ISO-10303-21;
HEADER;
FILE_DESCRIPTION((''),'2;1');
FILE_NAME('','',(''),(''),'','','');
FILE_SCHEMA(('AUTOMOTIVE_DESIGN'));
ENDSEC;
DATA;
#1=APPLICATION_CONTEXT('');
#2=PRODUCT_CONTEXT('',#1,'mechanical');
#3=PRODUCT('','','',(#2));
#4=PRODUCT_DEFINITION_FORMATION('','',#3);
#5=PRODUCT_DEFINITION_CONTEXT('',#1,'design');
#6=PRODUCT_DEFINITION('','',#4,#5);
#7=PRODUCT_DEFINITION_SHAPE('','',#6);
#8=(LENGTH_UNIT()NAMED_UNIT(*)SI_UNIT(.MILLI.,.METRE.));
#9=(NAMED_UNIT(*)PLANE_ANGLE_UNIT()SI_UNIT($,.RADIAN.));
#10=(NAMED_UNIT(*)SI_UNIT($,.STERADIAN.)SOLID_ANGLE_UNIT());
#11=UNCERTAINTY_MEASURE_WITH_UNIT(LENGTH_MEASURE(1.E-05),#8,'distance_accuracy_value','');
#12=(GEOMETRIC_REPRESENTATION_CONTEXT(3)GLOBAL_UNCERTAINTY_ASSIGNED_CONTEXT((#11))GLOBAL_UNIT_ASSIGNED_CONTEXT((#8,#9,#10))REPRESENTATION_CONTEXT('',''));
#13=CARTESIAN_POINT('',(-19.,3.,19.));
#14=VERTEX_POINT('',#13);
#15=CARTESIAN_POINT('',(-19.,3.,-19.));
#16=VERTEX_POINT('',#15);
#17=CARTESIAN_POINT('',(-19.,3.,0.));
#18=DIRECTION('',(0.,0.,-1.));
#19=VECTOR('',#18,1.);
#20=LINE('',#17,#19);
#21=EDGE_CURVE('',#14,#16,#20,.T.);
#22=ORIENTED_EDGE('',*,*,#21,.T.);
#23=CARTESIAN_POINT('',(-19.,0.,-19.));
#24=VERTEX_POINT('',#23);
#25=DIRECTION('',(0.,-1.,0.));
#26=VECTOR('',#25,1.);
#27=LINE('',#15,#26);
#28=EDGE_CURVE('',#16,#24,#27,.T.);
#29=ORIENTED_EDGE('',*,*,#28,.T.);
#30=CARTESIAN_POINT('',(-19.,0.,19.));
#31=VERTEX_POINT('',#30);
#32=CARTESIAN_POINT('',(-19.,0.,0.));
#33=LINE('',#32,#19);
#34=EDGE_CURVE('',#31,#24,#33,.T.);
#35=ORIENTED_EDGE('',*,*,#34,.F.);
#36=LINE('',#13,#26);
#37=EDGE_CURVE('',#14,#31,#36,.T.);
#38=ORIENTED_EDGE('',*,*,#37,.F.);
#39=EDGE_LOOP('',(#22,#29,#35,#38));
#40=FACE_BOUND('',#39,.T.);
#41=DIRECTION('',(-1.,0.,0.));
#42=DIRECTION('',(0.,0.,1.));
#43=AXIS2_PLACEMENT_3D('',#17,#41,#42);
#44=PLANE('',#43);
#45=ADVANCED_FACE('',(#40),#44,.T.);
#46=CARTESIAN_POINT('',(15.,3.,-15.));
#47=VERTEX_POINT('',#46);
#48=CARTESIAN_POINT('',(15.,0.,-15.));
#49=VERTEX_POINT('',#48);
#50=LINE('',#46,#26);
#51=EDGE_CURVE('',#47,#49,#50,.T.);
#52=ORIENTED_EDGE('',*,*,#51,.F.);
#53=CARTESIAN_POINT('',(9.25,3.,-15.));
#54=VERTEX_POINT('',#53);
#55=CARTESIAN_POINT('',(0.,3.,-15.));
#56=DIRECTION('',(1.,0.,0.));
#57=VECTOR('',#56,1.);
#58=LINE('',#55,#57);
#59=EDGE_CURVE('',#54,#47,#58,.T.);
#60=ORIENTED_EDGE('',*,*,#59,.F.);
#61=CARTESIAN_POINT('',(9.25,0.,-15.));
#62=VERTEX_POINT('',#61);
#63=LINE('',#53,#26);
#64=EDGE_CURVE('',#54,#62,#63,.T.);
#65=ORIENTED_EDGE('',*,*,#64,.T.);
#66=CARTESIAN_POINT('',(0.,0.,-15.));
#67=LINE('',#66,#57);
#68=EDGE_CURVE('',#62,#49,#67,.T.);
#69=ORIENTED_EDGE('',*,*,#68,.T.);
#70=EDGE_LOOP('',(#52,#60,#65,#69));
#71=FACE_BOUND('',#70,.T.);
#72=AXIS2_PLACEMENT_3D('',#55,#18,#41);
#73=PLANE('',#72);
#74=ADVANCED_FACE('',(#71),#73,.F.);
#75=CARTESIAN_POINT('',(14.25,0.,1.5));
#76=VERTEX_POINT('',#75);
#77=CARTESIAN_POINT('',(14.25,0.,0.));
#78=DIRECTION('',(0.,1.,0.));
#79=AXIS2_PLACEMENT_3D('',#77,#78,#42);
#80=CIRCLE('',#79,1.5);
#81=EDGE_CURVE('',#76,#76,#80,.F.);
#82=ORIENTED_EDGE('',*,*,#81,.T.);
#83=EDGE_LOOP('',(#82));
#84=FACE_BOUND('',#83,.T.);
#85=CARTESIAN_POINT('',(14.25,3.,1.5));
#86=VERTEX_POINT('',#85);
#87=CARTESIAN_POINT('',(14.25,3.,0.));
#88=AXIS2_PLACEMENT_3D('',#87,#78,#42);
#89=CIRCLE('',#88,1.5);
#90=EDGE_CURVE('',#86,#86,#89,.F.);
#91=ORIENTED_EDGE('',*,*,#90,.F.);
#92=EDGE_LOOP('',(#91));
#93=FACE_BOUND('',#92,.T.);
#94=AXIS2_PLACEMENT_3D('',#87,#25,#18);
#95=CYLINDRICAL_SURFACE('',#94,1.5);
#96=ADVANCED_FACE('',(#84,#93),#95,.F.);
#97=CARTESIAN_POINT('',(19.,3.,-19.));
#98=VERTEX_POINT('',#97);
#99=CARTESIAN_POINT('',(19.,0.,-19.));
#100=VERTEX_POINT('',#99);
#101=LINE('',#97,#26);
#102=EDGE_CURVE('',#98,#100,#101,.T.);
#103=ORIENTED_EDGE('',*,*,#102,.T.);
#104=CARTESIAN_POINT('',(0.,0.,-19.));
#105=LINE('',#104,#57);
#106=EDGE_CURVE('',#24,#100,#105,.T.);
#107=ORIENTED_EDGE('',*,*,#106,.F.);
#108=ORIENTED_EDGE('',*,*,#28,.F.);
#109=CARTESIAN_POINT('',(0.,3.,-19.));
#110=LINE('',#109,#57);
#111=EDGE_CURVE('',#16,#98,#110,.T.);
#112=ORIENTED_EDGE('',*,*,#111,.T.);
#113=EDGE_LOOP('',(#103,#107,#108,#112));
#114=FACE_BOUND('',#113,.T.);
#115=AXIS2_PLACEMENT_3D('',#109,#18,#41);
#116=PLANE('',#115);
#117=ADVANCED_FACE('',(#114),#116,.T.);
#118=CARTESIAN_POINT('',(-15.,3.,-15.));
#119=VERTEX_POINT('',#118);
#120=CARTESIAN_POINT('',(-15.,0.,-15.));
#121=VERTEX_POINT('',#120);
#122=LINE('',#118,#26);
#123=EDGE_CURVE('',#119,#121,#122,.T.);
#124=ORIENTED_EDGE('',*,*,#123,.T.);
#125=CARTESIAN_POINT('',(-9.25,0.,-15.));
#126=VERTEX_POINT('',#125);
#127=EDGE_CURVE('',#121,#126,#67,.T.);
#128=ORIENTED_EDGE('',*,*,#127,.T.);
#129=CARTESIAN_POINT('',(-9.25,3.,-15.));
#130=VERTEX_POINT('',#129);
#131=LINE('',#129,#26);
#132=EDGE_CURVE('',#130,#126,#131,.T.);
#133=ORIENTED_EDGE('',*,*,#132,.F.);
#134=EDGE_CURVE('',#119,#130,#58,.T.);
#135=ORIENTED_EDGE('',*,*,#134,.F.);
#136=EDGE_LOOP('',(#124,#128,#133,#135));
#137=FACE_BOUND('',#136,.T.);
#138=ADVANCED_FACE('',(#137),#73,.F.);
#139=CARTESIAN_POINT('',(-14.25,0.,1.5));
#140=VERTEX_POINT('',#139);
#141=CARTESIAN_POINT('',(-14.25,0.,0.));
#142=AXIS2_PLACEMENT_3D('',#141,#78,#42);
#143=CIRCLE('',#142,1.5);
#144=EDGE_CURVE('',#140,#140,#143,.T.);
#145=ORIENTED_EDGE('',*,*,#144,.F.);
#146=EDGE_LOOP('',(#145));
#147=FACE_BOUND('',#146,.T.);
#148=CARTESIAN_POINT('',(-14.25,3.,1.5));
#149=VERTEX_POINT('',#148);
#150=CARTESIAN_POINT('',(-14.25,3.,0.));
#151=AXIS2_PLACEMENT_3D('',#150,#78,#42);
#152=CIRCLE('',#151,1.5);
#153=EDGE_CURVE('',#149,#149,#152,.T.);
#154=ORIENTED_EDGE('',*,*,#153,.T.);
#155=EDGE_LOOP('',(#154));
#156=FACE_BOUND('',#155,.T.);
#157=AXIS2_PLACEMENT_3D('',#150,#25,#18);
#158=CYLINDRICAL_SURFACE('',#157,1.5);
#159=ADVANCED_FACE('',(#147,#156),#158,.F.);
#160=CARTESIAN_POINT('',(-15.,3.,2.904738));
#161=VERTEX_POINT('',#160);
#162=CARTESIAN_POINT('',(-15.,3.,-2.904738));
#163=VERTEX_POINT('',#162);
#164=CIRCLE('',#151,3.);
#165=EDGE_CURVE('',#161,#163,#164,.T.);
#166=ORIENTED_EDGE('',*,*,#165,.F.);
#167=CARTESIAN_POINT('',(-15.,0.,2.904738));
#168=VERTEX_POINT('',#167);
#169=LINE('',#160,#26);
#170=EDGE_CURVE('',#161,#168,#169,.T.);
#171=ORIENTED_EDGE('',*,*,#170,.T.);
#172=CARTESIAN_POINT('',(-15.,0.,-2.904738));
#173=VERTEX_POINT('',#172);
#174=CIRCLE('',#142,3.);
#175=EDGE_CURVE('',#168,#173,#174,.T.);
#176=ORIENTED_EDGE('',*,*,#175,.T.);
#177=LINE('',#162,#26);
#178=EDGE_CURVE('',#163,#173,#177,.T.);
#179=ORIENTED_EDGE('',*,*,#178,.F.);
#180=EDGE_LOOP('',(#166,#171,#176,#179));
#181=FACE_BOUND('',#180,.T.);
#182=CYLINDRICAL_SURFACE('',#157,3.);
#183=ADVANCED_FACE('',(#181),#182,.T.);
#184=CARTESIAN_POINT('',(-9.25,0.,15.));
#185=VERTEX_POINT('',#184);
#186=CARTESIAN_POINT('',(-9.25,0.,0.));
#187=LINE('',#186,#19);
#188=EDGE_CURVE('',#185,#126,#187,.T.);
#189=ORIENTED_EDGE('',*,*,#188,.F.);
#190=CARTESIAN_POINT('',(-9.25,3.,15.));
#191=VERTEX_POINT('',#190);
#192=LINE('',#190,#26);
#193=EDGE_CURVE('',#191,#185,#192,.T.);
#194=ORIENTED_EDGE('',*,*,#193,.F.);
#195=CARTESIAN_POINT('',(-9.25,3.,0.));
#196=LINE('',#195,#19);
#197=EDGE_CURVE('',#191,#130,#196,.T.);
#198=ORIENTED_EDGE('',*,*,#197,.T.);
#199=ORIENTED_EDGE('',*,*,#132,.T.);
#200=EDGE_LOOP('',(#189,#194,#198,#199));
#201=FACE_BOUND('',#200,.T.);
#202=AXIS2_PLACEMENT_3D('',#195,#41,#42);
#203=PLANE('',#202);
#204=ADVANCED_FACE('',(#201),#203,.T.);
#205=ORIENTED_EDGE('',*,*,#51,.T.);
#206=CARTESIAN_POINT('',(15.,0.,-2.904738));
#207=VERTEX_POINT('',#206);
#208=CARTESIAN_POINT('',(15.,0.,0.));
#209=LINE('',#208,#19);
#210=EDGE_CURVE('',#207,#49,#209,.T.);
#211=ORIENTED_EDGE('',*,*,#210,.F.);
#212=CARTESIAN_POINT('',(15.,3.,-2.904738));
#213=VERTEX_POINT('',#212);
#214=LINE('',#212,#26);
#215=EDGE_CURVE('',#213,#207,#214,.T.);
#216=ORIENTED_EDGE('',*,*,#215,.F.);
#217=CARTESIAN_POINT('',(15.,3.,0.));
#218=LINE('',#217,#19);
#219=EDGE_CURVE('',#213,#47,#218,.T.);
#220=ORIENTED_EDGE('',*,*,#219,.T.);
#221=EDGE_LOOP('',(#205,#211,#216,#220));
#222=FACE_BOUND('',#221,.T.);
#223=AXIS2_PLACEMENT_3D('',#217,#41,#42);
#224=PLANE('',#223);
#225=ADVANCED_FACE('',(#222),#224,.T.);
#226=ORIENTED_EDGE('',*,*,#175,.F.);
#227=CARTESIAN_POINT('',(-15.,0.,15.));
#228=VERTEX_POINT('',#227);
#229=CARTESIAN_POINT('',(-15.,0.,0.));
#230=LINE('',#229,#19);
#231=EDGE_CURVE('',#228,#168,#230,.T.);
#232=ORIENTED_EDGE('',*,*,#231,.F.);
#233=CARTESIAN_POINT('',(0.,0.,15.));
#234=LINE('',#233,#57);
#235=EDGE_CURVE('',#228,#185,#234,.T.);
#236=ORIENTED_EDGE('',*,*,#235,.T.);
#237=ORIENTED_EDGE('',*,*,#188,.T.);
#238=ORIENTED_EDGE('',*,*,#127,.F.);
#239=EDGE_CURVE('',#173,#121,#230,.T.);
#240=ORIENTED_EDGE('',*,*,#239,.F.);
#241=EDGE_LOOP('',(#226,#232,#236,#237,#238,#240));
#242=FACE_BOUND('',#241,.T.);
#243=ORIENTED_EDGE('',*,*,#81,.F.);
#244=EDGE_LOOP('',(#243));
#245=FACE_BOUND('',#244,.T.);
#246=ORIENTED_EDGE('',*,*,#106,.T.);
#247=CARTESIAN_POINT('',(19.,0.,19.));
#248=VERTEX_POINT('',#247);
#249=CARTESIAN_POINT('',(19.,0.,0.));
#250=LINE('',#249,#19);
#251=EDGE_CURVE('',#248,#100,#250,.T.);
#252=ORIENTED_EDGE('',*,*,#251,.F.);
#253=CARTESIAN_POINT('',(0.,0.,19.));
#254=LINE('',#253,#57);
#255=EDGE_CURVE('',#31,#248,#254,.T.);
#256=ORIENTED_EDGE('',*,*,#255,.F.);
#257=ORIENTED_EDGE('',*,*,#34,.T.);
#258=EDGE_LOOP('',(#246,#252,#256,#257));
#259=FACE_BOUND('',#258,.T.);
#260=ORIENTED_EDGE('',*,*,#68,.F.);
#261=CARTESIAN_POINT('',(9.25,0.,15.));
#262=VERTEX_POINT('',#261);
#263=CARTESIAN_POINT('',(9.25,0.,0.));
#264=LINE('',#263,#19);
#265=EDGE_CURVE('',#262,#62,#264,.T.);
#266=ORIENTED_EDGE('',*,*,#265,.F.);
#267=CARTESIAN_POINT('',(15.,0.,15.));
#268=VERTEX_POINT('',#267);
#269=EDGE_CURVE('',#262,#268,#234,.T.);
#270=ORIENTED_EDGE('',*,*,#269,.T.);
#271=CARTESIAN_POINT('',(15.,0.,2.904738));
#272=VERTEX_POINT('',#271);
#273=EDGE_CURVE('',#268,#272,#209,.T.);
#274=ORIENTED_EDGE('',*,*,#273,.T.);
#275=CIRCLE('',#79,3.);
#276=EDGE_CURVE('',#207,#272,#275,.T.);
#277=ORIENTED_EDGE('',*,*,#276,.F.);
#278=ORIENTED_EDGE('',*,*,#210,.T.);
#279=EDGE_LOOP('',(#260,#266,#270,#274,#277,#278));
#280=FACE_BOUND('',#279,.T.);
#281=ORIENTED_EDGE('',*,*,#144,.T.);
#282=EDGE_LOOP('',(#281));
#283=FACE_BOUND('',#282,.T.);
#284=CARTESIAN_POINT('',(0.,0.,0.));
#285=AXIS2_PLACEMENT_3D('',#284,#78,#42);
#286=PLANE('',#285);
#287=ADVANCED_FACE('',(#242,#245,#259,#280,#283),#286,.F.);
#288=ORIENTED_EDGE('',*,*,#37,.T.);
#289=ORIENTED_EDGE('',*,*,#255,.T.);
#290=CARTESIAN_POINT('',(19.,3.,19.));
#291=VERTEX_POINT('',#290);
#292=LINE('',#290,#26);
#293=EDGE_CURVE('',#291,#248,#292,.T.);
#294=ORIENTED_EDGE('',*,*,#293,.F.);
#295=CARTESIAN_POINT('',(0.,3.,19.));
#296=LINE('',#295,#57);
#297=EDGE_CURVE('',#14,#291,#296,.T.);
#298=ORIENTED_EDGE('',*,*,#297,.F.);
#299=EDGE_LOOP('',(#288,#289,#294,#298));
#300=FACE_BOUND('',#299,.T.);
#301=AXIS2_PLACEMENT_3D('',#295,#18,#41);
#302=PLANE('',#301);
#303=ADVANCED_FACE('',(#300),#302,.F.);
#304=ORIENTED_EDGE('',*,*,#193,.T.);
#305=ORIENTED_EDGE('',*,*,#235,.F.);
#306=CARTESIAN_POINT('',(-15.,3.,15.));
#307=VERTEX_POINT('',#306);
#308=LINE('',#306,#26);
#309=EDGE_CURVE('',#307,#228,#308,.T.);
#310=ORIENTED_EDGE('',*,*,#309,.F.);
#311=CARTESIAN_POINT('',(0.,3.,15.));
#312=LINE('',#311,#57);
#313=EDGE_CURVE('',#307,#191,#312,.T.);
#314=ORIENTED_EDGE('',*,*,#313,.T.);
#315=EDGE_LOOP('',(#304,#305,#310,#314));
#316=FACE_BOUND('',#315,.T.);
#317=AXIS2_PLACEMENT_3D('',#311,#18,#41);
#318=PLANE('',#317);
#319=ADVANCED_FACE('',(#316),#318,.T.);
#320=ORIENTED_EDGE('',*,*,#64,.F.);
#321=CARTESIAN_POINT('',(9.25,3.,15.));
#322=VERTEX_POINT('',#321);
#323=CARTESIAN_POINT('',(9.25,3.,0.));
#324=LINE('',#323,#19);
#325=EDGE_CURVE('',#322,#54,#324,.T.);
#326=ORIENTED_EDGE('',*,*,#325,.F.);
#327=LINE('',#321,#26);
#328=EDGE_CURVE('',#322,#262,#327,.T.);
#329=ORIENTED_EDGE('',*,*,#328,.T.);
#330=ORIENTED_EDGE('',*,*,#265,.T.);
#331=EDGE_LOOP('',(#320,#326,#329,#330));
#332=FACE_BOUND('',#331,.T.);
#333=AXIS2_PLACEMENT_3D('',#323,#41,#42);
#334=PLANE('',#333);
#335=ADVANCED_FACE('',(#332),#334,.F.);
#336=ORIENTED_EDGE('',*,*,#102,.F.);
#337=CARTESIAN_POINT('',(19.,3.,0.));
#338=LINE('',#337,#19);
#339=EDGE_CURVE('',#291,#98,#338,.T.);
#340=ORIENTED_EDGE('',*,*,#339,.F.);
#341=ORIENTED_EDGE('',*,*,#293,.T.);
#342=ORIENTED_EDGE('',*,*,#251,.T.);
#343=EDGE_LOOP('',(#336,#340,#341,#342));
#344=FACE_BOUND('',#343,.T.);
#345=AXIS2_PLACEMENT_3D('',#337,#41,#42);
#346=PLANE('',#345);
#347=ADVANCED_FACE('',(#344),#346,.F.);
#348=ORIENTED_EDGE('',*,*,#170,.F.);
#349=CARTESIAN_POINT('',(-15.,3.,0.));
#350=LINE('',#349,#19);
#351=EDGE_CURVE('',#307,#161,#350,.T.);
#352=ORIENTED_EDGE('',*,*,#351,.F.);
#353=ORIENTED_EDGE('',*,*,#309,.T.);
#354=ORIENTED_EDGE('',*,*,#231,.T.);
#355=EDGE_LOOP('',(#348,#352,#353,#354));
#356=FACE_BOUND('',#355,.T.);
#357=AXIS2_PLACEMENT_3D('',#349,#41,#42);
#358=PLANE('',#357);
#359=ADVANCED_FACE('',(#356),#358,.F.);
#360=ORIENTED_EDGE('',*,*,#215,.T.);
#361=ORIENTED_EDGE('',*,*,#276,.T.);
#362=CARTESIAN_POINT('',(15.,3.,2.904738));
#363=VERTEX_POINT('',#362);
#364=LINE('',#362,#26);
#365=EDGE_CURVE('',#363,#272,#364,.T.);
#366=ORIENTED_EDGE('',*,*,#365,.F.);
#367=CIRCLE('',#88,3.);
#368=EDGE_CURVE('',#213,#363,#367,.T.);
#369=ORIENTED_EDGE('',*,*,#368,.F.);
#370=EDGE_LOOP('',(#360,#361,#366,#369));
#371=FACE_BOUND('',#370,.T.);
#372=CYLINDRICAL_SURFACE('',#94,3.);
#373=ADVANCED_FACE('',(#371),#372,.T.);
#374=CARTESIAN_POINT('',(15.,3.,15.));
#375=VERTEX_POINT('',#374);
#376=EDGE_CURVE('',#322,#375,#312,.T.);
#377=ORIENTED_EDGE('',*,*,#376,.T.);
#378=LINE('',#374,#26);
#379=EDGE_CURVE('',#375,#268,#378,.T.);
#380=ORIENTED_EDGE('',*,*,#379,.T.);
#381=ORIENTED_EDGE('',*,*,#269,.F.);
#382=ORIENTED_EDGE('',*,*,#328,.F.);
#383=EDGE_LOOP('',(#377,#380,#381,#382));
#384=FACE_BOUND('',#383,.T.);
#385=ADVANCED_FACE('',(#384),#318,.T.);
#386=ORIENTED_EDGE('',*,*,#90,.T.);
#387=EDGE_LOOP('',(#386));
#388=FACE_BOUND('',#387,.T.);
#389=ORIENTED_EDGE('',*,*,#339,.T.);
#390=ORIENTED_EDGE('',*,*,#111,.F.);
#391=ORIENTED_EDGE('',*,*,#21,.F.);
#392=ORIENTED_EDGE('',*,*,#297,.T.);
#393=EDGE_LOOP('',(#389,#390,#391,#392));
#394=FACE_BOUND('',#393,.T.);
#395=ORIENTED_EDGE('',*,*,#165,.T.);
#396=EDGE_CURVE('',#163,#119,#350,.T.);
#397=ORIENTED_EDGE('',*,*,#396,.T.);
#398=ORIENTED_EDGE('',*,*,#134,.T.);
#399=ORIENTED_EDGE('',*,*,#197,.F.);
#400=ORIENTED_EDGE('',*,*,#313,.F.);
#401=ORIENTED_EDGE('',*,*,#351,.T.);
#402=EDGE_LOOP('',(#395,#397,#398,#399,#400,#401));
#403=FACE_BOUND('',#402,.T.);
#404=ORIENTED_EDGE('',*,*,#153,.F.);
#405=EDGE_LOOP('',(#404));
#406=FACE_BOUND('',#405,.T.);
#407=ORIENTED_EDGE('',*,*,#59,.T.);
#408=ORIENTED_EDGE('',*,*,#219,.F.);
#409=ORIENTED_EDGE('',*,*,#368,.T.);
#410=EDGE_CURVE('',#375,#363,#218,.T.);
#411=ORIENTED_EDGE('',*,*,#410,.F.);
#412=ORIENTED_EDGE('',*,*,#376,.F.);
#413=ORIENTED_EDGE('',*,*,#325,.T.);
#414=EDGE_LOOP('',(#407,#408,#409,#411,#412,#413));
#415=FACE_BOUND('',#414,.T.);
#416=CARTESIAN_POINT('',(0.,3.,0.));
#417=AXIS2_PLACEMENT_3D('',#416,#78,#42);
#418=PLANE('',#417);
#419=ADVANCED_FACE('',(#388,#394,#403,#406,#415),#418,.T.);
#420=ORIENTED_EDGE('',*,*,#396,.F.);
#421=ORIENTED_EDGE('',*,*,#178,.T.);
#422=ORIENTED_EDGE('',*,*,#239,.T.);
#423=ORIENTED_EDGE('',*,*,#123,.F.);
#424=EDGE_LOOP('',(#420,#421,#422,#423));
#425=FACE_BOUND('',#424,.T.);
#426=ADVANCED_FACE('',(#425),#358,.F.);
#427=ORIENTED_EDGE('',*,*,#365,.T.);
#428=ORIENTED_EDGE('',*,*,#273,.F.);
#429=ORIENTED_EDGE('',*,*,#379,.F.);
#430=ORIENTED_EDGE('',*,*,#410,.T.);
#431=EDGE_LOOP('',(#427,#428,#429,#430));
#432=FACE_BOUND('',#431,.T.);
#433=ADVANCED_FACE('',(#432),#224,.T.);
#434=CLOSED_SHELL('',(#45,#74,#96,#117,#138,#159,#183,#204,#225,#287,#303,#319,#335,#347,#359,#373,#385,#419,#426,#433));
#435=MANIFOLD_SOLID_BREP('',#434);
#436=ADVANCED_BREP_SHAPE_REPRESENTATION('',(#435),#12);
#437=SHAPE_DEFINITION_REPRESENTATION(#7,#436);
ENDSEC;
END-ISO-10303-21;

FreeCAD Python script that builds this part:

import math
import FreeCAD as App
import Part
import Sketcher

V = App.Vector

doc = App.newDocument("Part")
params = doc.addObject("Spreadsheet::Sheet", "Params")
for row, (alias, value) in enumerate([
    ("sketch1_diameter", "3 mm"),
    ("sketch1_radius", "3 mm"),
    ("sketch1_width", "38 mm"),
    ("sketch1_height", "30 mm"),
    ("sketch1_width2", "5.75 mm"),
    ("pad1_length", "3 mm"),
], start=1):
    params.set(f"A{row}", alias)
    params.set(f"B{row}", "=" + value)
    params.setAlias(f"B{row}", alias)

body = doc.addObject("PartDesign::Body", "Body")

# Sketch on XZ plane
sketch1 = body.newObject("Sketcher::SketchObject", "Sketch")
sketch1.AttachmentSupport = (doc.getObject("XZ_Plane"), [""])
sketch1.MapMode = "FlatFace"
sketch1.addGeometry([
    Part.LineSegment(V(-19, -19, 0), V(-19, 19, 0)),  # 0
    Part.LineSegment(V(-19, 19, 0), V(19, 19, 0)),  # 1
    Part.LineSegment(V(19, 19, 0), V(19, -19, 0)),  # 2
    Part.LineSegment(V(19, -19, 0), V(-19, -19, 0)),  # 3
    Part.Circle(V(-14.2, 0, 0), V(0, 0, 1), 1.5),  # 4
    Part.LineSegment(V(-15, 15, 0), V(-15, 2.9, 0)),  # 5
    Part.ArcOfCircle(Part.Circle(V(-14.2, 0, 0), V(0, 0, 1), 3), math.radians(-104), math.radians(104)),  # 6
    Part.LineSegment(V(-15, -2.9, 0), V(-15, -15, 0)),  # 7
    Part.LineSegment(V(-15, -15, 0), V(-9.2, -15, 0)),  # 8
    Part.LineSegment(V(-9.2, -15, 0), V(-9.2, 15, 0)),  # 9
    Part.LineSegment(V(-9.2, 15, 0), V(-15, 15, 0)),  # 10
    Part.LineSegment(V(15, 2.9, 0), V(15, 15, 0)),  # 11
    Part.LineSegment(V(15, 15, 0), V(9.2, 15, 0)),  # 12
    Part.LineSegment(V(9.2, 15, 0), V(9.2, -15, 0)),  # 13
    Part.LineSegment(V(9.2, -15, 0), V(15, -15, 0)),  # 14
    Part.LineSegment(V(15, -15, 0), V(15, -2.9, 0)),  # 15
    Part.ArcOfCircle(Part.Circle(V(14.2, 0, 0), V(0, 0, 1), 3), math.radians(76), math.radians(284)),  # 16
    Part.Circle(V(14.2, 0, 0), V(0, 0, 1), 1.5),  # 17
], False)
sketch1.addConstraint([
    Sketcher.Constraint("Coincident", 0, 2, 1, 1),
    Sketcher.Constraint("Coincident", 1, 2, 2, 1),
    Sketcher.Constraint("Coincident", 2, 2, 3, 1),
    Sketcher.Constraint("Coincident", 3, 2, 0, 1),
    Sketcher.Constraint("Coincident", 5, 2, 6, 2),
    Sketcher.Constraint("Coincident", 6, 1, 7, 1),
    Sketcher.Constraint("Coincident", 7, 2, 8, 1),
    Sketcher.Constraint("Coincident", 8, 2, 9, 1),
    Sketcher.Constraint("Coincident", 9, 2, 10, 1),
    Sketcher.Constraint("Coincident", 10, 2, 5, 1),
    Sketcher.Constraint("Coincident", 11, 2, 12, 1),
    Sketcher.Constraint("Coincident", 12, 2, 13, 1),
    Sketcher.Constraint("Coincident", 13, 2, 14, 1),
    Sketcher.Constraint("Coincident", 14, 2, 15, 1),
    Sketcher.Constraint("Coincident", 15, 2, 16, 2),
    Sketcher.Constraint("Coincident", 16, 1, 11, 1),
    Sketcher.Constraint("Vertical", 0),
    Sketcher.Constraint("Horizontal", 1),
    Sketcher.Constraint("Vertical", 2),
    Sketcher.Constraint("Horizontal", 3),
    Sketcher.Constraint("Vertical", 5),
    Sketcher.Constraint("Vertical", 7),
    Sketcher.Constraint("Horizontal", 8),
    Sketcher.Constraint("Vertical", 9),
    Sketcher.Constraint("Horizontal", 10),
    Sketcher.Constraint("Vertical", 11),
    Sketcher.Constraint("Horizontal", 12),
    Sketcher.Constraint("Vertical", 13),
    Sketcher.Constraint("Horizontal", 14),
    Sketcher.Constraint("Vertical", 15),
    Sketcher.Constraint("Coincident", 6, 3, 4, 3),
    Sketcher.Constraint("Coincident", 17, 3, 16, 3),
    Sketcher.Constraint("Equal", 6, 16),
    Sketcher.Constraint("Equal", 4, 17),
    Sketcher.Constraint("Symmetric", 4, 3, 16, 3, -1, 1),
    Sketcher.Constraint("Symmetric", 0, 2, 2, 2, -1, 1),
    Sketcher.Constraint("Symmetric", 7, 2, 11, 2, -1, 1),
    Sketcher.Constraint("Symmetric", 9, 2, 13, 2, -1, 1),
    Sketcher.Constraint("Symmetric", 10, 2, 11, 2, -2),
    Sketcher.Constraint("Symmetric", 6, 1, 15, 2, -2),
    Sketcher.Constraint("Equal", 3, 0),
    Sketcher.Constraint("Diameter", 4, 3.0),
    Sketcher.Constraint("Radius", 6, 3.0),
    Sketcher.Constraint("DistanceX", 1, 1, 1, 2, 38.0),
    Sketcher.Constraint("DistanceY", 9, 1, 9, 2, 30.0),
    Sketcher.Constraint("DistanceX", 5, 2, -1, 1, 15.0),
    Sketcher.Constraint("DistanceX", 4, 3, 8, 2, 5.0),
    Sketcher.Constraint("DistanceX", 8, 1, 8, 2, 5.75),
])
sketch1.setExpression("Constraints[41]", "Params.sketch1_diameter")
sketch1.setExpression("Constraints[42]", "Params.sketch1_radius")
sketch1.setExpression("Constraints[43]", "Params.sketch1_width")
sketch1.setExpression("Constraints[44]", "Params.sketch1_height")
sketch1.setExpression("Constraints[47]", "Params.sketch1_width2")
pad1 = body.newObject("PartDesign::Pad", "Pad")
pad1.Profile = sketch1
pad1.setExpression("Length", "Params.pad1_length")
pad1.Reversed = True

doc.recompute()
